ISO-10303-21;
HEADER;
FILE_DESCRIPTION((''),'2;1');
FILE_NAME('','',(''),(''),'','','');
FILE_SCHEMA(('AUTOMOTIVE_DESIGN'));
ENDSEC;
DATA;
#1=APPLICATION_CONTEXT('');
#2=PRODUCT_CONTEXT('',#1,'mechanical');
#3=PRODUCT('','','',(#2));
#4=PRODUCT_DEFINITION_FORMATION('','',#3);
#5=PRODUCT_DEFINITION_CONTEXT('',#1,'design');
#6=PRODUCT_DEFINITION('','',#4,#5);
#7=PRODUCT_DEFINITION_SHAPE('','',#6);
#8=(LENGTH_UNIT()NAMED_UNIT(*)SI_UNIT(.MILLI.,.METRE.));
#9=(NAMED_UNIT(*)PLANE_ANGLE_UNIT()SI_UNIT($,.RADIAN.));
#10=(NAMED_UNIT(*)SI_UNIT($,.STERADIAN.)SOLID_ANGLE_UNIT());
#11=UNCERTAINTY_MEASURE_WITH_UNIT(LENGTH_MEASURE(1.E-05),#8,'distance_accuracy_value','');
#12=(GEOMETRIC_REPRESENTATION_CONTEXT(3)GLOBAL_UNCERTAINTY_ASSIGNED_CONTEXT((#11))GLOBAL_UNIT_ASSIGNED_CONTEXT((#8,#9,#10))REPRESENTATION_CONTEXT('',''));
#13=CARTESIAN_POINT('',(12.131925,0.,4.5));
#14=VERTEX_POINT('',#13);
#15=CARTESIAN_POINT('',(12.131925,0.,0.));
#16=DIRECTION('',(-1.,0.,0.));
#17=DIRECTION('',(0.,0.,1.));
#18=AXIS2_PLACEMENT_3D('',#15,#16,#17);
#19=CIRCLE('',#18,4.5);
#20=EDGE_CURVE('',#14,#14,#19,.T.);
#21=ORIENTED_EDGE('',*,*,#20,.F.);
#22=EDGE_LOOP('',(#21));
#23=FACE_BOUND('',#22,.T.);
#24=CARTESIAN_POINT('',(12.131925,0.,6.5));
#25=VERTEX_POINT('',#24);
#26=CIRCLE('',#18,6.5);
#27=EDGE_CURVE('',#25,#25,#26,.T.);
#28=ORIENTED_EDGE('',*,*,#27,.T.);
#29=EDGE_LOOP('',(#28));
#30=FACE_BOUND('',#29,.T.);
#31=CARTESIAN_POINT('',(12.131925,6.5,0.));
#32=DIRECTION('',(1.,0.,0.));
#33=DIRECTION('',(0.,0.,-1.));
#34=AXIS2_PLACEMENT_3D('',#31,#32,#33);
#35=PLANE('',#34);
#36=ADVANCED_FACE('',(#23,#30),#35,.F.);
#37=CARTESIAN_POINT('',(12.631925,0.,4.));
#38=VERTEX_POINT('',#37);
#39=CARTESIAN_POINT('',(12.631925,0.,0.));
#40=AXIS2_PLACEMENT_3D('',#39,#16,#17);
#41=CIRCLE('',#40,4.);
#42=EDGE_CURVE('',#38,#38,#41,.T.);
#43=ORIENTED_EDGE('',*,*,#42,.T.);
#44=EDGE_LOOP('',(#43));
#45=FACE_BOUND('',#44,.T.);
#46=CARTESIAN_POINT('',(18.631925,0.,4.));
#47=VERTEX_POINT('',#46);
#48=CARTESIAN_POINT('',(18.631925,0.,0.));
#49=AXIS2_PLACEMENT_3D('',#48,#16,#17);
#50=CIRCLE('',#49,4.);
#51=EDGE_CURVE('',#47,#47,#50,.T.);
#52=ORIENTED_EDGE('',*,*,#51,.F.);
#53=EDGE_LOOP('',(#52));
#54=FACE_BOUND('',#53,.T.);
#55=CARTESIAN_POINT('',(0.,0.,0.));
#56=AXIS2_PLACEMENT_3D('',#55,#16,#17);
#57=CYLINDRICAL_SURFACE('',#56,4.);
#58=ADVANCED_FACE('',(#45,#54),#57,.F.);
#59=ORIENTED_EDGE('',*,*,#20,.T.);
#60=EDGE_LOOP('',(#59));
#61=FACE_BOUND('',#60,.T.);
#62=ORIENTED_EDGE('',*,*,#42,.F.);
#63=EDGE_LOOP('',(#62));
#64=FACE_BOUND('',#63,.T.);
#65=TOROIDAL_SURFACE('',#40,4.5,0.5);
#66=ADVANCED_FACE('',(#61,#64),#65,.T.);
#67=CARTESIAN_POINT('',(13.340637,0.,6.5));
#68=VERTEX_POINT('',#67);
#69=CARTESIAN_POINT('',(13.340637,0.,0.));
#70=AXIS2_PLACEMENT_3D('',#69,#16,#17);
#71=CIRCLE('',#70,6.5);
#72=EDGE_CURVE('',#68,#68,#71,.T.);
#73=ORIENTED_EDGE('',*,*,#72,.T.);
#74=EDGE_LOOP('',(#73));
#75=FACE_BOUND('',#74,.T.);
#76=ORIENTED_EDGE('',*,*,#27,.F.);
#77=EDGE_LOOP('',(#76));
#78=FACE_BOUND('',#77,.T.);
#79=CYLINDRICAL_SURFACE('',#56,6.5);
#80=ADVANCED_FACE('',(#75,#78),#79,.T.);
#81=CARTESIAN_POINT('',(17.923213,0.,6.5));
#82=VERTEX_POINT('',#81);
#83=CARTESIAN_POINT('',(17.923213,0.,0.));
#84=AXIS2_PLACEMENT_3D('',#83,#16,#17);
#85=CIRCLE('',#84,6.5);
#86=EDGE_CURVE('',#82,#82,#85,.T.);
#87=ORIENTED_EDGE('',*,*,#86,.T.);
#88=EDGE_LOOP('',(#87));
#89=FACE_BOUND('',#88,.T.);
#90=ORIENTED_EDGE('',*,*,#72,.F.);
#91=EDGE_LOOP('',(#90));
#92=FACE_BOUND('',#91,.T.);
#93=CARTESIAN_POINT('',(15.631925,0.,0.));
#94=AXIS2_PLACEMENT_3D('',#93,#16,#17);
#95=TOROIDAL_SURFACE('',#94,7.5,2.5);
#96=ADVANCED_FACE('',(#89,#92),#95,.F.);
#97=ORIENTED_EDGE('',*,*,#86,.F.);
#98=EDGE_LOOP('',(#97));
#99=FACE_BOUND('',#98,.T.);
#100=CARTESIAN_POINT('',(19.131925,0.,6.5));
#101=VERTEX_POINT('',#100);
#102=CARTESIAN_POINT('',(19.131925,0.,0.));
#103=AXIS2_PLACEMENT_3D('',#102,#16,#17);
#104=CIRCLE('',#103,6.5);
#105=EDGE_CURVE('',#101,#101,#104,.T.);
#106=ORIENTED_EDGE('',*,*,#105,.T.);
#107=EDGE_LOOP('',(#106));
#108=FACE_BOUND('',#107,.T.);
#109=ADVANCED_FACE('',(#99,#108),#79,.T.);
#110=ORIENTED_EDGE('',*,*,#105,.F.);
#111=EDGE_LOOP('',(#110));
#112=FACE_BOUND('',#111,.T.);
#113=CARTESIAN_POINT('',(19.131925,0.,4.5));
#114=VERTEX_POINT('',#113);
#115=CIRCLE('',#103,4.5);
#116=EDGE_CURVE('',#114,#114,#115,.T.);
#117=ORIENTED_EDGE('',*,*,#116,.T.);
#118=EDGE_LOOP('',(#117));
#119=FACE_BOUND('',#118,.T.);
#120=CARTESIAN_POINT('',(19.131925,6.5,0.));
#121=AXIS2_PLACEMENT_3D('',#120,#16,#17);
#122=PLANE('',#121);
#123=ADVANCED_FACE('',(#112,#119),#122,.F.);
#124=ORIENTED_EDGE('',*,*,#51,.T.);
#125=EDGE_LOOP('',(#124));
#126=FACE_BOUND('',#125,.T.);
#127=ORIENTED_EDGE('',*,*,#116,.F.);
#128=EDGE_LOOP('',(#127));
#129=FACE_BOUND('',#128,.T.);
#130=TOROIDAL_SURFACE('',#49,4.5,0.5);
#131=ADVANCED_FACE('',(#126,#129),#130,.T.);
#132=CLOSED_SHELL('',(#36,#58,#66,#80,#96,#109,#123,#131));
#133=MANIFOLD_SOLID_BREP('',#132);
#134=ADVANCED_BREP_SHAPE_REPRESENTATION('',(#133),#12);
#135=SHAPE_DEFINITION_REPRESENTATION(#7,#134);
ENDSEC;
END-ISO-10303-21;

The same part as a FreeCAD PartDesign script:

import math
import FreeCAD as App
import Part
import Sketcher
Q = App.Units.Quantity

doc = App.newDocument("Part")
body = doc.addObject("PartDesign::Body", "Body")

# Sketch on XY plane
sketch1 = body.newObject("Sketcher::SketchObject", "Sketch")
sketch1.AttachmentSupport = (doc.getObject("XY_Plane"), [""])
sketch1.MapMode = "FlatFace"
sketch1.addGeometry([
    Part.LineSegment(App.Vector(19.13, 6.5, 0), App.Vector(17.92, 6.5, 0)),  # 0
    Part.ArcOfCircle(Part.Circle(App.Vector(15.63, 7.5, 0), App.Vector(0, 0, 1), 2.5), math.radians(-156), math.radians(-24)),  # 1
    Part.LineSegment(App.Vector(13.34, 6.5, 0), App.Vector(12.13, 6.5, 0)),  # 2
    Part.LineSegment(App.Vector(12.13, 6.5, 0), App.Vector(12.13, 4.5, 0)),  # 3
    Part.ArcOfCircle(Part.Circle(App.Vector(12.63, 4.5, 0), App.Vector(0, 0, 1), 0.5), math.radians(180), math.radians(270)),  # 4
    Part.LineSegment(App.Vector(12.63, 4, 0), App.Vector(18.63, 4, 0)),  # 5
    Part.ArcOfCircle(Part.Circle(App.Vector(18.63, 4.5, 0), App.Vector(0, 0, 1), 0.5), math.radians(-90), math.radians(0)),  # 6
    Part.LineSegment(App.Vector(19.13, 4.5, 0), App.Vector(19.13, 6.5, 0)),  # 7
], False)
sketch1.addConstraint([
    Sketcher.Constraint("Coincident", 0, 2, 1, 2),
    Sketcher.Constraint("Coincident", 1, 1, 2, 1),
    Sketcher.Constraint("Coincident", 2, 2, 3, 1),
    Sketcher.Constraint("Tangent", 3, 2, 4, 1),
    Sketcher.Constraint("Tangent", 4, 2, 5, 1),
    Sketcher.Constraint("Tangent", 5, 2, 6, 1),
    Sketcher.Constraint("Tangent", 6, 2, 7, 1),
    Sketcher.Constraint("Coincident", 7, 2, 0, 1),
    Sketcher.Constraint("Horizontal", 0),
    Sketcher.Constraint("Horizontal", 2),
    Sketcher.Constraint("Vertical", 3),
    Sketcher.Constraint("Horizontal", 5),
    Sketcher.Constraint("Vertical", 7),
    Sketcher.Constraint("Equal", 4, 6),
    Sketcher.Constraint("Horizontal", 0, 2, 1, 1),
    Sketcher.Constraint("Equal", 0, 2),
    Sketcher.Constraint("Radius", 1, Q("2.5 mm")),
    Sketcher.Constraint("Radius", 4, Q("0.5 mm")),
    Sketcher.Constraint("DistanceX", 5, 1, 5, 2, Q("6 mm")),
    Sketcher.Constraint("DistanceY", 3, 2, 3, 1, Q("2 mm")),
    Sketcher.Constraint("DistanceY", -1, 1, 4, 2, Q("4 mm")),
    Sketcher.Constraint("DistanceY", 4, 3, 1, 3, Q("3 mm")),
    Sketcher.Constraint("DistanceX", -1, 1, 1, 3, Q("15.631925 mm")),
])
revolution = body.newObject("PartDesign::Revolution", "Revolution")
revolution.Profile = sketch1
revolution.ReferenceAxis = (sketch1, ["H_Axis"])
revolution.Angle = 360

doc.recompute()
